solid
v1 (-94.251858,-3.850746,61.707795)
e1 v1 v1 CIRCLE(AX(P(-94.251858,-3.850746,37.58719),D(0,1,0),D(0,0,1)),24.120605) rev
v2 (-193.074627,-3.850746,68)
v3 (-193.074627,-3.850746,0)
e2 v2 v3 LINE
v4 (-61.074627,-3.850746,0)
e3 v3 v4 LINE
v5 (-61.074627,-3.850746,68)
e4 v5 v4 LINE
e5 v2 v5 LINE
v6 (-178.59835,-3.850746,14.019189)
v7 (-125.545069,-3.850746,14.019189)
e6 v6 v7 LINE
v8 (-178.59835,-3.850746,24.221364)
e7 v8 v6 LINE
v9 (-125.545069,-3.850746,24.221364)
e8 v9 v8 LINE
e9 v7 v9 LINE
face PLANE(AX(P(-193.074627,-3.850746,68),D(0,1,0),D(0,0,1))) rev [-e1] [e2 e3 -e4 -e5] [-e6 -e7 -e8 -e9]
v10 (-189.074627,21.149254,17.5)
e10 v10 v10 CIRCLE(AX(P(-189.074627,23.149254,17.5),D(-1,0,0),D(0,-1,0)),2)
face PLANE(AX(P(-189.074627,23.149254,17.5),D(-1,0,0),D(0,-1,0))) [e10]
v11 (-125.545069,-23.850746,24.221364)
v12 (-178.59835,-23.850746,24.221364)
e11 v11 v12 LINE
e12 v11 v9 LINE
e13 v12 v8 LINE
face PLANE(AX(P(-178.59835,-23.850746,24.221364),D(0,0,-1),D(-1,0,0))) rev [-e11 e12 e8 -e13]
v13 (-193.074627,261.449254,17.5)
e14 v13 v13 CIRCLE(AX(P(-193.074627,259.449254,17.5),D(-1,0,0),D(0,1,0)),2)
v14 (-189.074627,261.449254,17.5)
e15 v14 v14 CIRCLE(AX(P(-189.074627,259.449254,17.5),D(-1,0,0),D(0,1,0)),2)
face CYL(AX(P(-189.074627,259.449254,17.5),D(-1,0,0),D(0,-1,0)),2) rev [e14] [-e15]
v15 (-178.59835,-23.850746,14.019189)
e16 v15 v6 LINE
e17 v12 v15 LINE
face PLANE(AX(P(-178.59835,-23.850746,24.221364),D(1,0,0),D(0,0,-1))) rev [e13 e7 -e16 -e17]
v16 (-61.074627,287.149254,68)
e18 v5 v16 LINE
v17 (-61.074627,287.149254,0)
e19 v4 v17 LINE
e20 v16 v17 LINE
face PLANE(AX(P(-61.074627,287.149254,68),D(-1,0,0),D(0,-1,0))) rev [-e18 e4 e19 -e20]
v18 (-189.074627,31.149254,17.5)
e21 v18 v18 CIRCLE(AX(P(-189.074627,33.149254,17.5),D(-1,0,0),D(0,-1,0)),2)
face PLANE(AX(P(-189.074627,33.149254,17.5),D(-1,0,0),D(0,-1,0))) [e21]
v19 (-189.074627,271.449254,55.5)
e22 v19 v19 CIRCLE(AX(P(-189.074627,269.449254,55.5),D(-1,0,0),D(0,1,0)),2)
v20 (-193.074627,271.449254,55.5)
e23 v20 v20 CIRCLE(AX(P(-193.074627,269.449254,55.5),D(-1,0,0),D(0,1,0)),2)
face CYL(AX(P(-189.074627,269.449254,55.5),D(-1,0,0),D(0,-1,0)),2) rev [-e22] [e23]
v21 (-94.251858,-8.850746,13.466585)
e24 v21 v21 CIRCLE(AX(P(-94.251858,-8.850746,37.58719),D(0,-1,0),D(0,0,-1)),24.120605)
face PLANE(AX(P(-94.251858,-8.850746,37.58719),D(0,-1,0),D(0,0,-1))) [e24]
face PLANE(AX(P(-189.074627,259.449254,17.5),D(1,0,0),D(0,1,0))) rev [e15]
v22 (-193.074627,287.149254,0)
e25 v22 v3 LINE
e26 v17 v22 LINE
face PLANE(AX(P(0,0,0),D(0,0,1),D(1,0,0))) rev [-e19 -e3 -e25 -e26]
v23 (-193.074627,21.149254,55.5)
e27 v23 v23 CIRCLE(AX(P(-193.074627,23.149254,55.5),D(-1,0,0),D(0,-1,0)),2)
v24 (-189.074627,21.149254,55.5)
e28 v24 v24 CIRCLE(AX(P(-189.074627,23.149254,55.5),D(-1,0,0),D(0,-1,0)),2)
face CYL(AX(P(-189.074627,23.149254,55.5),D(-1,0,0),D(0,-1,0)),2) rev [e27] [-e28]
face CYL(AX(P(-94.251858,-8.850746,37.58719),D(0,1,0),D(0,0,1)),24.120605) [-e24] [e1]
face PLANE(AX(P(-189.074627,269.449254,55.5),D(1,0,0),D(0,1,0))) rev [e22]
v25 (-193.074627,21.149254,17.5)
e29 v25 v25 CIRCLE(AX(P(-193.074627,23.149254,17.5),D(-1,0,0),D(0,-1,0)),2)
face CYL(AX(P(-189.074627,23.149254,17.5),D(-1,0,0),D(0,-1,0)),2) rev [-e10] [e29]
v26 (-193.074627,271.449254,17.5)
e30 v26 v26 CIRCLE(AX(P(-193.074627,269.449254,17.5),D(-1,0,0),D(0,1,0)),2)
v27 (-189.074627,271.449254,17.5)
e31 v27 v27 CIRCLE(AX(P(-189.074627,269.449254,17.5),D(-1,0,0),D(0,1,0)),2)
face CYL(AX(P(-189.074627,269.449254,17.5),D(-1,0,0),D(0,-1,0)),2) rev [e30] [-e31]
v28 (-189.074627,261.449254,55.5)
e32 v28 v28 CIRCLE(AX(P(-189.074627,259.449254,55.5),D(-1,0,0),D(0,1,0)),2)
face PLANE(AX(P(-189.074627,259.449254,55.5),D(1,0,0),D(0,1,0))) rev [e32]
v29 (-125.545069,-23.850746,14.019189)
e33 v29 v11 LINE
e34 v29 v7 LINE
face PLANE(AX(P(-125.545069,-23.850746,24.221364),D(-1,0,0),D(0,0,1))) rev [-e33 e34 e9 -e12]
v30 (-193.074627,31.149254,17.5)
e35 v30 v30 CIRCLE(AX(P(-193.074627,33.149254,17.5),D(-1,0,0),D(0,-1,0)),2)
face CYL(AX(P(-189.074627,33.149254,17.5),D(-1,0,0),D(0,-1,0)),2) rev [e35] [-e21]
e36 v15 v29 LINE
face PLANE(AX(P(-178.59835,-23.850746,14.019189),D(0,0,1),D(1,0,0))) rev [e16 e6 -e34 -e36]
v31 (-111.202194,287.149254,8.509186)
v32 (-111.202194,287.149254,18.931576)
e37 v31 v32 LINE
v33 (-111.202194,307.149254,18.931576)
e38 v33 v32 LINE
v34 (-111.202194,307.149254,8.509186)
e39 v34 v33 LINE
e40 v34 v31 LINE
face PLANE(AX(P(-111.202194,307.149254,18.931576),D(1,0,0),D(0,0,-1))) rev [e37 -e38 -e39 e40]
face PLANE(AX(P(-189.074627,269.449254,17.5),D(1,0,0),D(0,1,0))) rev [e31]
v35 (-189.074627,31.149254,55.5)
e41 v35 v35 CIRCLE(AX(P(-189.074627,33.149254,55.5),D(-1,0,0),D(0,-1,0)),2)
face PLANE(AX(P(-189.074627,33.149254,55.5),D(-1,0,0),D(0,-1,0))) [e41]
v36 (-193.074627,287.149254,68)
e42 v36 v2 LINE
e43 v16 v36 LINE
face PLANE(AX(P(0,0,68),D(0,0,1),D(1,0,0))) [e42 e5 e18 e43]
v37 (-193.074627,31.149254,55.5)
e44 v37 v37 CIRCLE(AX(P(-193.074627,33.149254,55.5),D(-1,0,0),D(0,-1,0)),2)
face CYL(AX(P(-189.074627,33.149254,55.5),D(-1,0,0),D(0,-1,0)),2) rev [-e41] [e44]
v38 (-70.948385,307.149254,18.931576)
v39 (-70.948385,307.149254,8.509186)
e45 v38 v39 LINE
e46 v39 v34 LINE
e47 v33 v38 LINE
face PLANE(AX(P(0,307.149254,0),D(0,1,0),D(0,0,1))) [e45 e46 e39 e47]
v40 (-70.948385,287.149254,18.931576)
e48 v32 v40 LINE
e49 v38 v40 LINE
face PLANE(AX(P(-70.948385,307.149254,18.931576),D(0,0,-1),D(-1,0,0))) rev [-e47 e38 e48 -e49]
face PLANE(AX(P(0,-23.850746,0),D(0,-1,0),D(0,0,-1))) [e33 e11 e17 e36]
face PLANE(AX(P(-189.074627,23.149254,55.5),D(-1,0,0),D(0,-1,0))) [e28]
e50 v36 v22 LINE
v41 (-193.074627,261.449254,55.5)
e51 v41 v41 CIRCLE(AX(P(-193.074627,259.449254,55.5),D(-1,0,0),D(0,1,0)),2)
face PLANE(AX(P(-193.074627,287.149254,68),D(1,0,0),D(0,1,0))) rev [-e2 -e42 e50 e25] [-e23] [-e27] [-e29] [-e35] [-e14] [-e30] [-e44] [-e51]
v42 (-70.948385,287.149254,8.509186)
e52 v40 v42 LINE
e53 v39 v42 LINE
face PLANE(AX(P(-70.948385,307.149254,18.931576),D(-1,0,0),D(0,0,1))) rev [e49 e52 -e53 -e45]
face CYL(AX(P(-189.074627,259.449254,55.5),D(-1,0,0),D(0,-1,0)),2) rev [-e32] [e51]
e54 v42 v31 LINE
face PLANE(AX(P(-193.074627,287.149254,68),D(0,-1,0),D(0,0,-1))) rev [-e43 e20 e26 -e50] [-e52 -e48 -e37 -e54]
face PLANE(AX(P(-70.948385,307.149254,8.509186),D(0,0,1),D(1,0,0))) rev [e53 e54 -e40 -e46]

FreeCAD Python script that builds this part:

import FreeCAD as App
import Part
import Sketcher

V = App.Vector

doc = App.newDocument("Part")
params = doc.addObject("Spreadsheet::Sheet", "Params")
for row, (alias, value) in enumerate([
    ("sketch1_width", "132 mm"),
    ("sketch1_height", "291 mm"),
    ("pad1_length", "68 mm"),
    ("sketch2_diameter", "4 mm"),
    ("pocket1_length", "4 mm"),
    ("pad2_length", "20 mm"),
    ("pad3_length", "5 mm"),
    ("pad4_length", "20 mm"),
], start=1):
    params.set(f"A{row}", alias)
    params.set(f"B{row}", "=" + value)
    params.setAlias(f"B{row}", alias)

body = doc.addObject("PartDesign::Body", "Body")

sketch1 = body.newObject("Sketcher::SketchObject", "Sketch")
sketch1.AttachmentSupport = (doc.getObject("XY_Plane"), [""])
sketch1.MapMode = "FlatFace"
sketch1.addGeometry([
    Part.LineSegment(V(-193, 287, 0), V(-193, -4, 0)),
    Part.LineSegment(V(-193, -4, 0), V(-61, -4, 0)),
    Part.LineSegment(V(-61, -4, 0), V(-61, 287, 0)),
    Part.LineSegment(V(-61, 287, 0), V(-193, 287, 0)),
], False)
sketch1.addConstraint([
    Sketcher.Constraint("Coincident", 0, 2, 1, 1),
    Sketcher.Constraint("Coincident", 1, 2, 2, 1),
    Sketcher.Constraint("Coincident", 2, 2, 3, 1),
    Sketcher.Constraint("Coincident", 3, 2, 0, 1),
    Sketcher.Constraint("Vertical", 0),
    Sketcher.Constraint("Horizontal", 1),
    Sketcher.Constraint("Vertical", 2),
    Sketcher.Constraint("Horizontal", 3),
    Sketcher.Constraint("DistanceX", 1, 1, 1, 2, 132.0),
    Sketcher.Constraint("DistanceY", 0, 2, 0, 1, 291.0),
    Sketcher.Constraint("DistanceX", 0, 2, -1, 1, 193.074627),
    Sketcher.Constraint("DistanceY", 0, 2, -1, 1, 3.850746),
])
sketch1.setExpression("Constraints[8]", "Params.sketch1_width")
sketch1.setExpression("Constraints[9]", "Params.sketch1_height")
pad1 = body.newObject("PartDesign::Pad", "Pad")
pad1.Profile = sketch1
pad1.setExpression("Length", "Params.pad1_length")

sketch2 = body.newObject("Sketcher::SketchObject", "Sketch001")
sketch2.AttachmentSupport = (doc.getObject("YZ_Plane"), [""])
sketch2.MapMode = "FlatFace"
sketch2.AttachmentOffset = App.Placement(V(0, 0, -193.074627), App.Rotation())
sketch2.addGeometry([
    Part.Circle(V(23.1, 17.5, 0), V(0, 0, 1), 2),
    Part.Circle(V(23.1, 55.5, 0), V(0, 0, 1), 2),
    Part.Circle(V(33.1, 55.5, 0), V(0, 0, 1), 2),
    Part.Circle(V(33.1, 17.5, 0), V(0, 0, 1), 2),
    Part.Circle(V(269.4, 17.5, 0), V(0, 0, 1), 2),
    Part.Circle(V(259.4, 17.5, 0), V(0, 0, 1), 2),
    Part.Circle(V(259.4, 55.5, 0), V(0, 0, 1), 2),
    Part.Circle(V(269.4, 55.5, 0), V(0, 0, 1), 2),
], False)
sketch2.addConstraint([
    Sketcher.Constraint("Equal", 0, 1),
    Sketcher.Constraint("Equal", 1, 2),
    Sketcher.Constraint("Equal", 2, 3),
    Sketcher.Constraint("Equal", 3, 4),
    Sketcher.Constraint("Equal", 4, 5),
    Sketcher.Constraint("Equal", 5, 6),
    Sketcher.Constraint("Equal", 6, 7),
    Sketcher.Constraint("Horizontal", 1, 3, 2, 3),
    Sketcher.Constraint("Horizontal", 0, 3, 3, 3),
    Sketcher.Constraint("Horizontal", 3, 3, 4, 3),
    Sketcher.Constraint("Horizontal", 4, 3, 5, 3),
    Sketcher.Constraint("Horizontal", 2, 3, 6, 3),
    Sketcher.Constraint("Horizontal", 6, 3, 7, 3),
    Sketcher.Constraint("Vertical", 0, 3, 1, 3),
    Sketcher.Constraint("Vertical", 2, 3, 3, 3),
    Sketcher.Constraint("Vertical", 5, 3, 6, 3),
    Sketcher.Constraint("Vertical", 4, 3, 7, 3),
    Sketcher.Constraint("Diameter", 0, 4.0),
    Sketcher.Constraint("DistanceY", 0, 3, 1, 3, 38.0),
    Sketcher.Constraint("DistanceX", 1, 3, 2, 3, 10.0),
    Sketcher.Constraint("DistanceX", 5, 3, 4, 3, 10.0),
    Sketcher.Constraint("DistanceY", -1, 1, 0, 3, 17.5),
    Sketcher.Constraint("DistanceX", 3, 3, 4, 3, 236.3),
    Sketcher.Constraint("DistanceX", -1, 1, 0, 3, 23.149254),
])
sketch2.setExpression("Constraints[17]", "Params.sketch2_diameter")
pocket1 = body.newObject("PartDesign::Pocket", "Pocket")
pocket1.Profile = sketch2
pocket1.setExpression("Length", "Params.pocket1_length")
pocket1.Reversed = True

sketch3 = body.newObject("Sketcher::SketchObject", "Sketch002")
sketch3.AttachmentSupport = (doc.getObject("XZ_Plane"), [""])
sketch3.MapMode = "FlatFace"
sketch3.AttachmentOffset = App.Placement(V(0, 0, 3.850746), App.Rotation())
sketch3.addGeometry([
    Part.LineSegment(V(-179, 24, 0), V(-179, 14, 0)),
    Part.LineSegment(V(-179, 14, 0), V(-126, 14, 0)),
    Part.LineSegment(V(-126, 14, 0), V(-126, 24, 0)),
    Part.LineSegment(V(-126, 24, 0), V(-179, 24, 0)),
], False)
sketch3.addConstraint([
    Sketcher.Constraint("Coincident", 0, 2, 1, 1),
    Sketcher.Constraint("Coincident", 1, 2, 2, 1),
    Sketcher.Constraint("Coincident", 2, 2, 3, 1),
    Sketcher.Constraint("Coincident", 3, 2, 0, 1),
    Sketcher.Constraint("Vertical", 0),
    Sketcher.Constraint("Horizontal", 1),
    Sketcher.Constraint("Vertical", 2),
    Sketcher.Constraint("Horizontal", 3),
    Sketcher.Constraint("DistanceX", 1, 1, 1, 2, 53.053281),
    Sketcher.Constraint("DistanceY", 0, 2, 0, 1, 10.202176),
    Sketcher.Constraint("DistanceX", 0, 2, -1, 1, 178.59835),
    Sketcher.Constraint("DistanceY", -1, 1, 0, 2, 14.019189),
])
pad2 = body.newObject("PartDesign::Pad", "Pad001")
pad2.Profile = sketch3
pad2.setExpression("Length", "Params.pad2_length")

sketch4 = body.newObject("Sketcher::SketchObject", "Sketch003")
sketch4.AttachmentSupport = (doc.getObject("XZ_Plane"), [""])
sketch4.MapMode = "FlatFace"
sketch4.AttachmentOffset = App.Placement(V(0, 0, 3.850746), App.Rotation())
sketch4.addGeometry(Part.Circle(V(-94, 38, 0), V(0, 0, 1), 24), False)
sketch4.addConstraint([
    Sketcher.Constraint("Diameter", 0, 48.24121),
    Sketcher.Constraint("DistanceY", -1, 1, 0, 3, 37.58719),
    Sketcher.Constraint("DistanceX", 0, 3, -1, 1, 94.251858),
])
pad3 = body.newObject("PartDesign::Pad", "Pad002")
pad3.Profile = sketch4
pad3.setExpression("Length", "Params.pad3_length")

sketch5 = body.newObject("Sketcher::SketchObject", "Sketch004")
sketch5.AttachmentSupport = (doc.getObject("XZ_Plane"), [""])
sketch5.MapMode = "FlatFace"
sketch5.AttachmentOffset = App.Placement(V(0, 0, -287.149254), App.Rotation())
sketch5.addGeometry([
    Part.LineSegment(V(-111, 9, 0), V(-111, 19, 0)),
    Part.LineSegment(V(-111, 19, 0), V(-71, 19, 0)),
    Part.LineSegment(V(-71, 19, 0), V(-71, 9, 0)),
    Part.LineSegment(V(-71, 9, 0), V(-111, 9, 0)),
], False)
sketch5.addConstraint([
    Sketcher.Constraint("Coincident", 0, 2, 1, 1),
    Sketcher.Constraint("Coincident", 1, 2, 2, 1),
    Sketcher.Constraint("Coincident", 2, 2, 3, 1),
    Sketcher.Constraint("Coincident", 3, 2, 0, 1),
    Sketcher.Constraint("Vertical", 0),
    Sketcher.Constraint("Horizontal", 1),
    Sketcher.Constraint("Vertical", 2),
    Sketcher.Constraint("Horizontal", 3),
    Sketcher.Constraint("DistanceX", 1, 1, 1, 2, 40.253809),
    Sketcher.Constraint("DistanceY", 0, 1, 0, 2, 10.42239),
    Sketcher.Constraint("DistanceX", 0, 2, -1, 1, 111.202194),
    Sketcher.Constraint("DistanceY", -1, 1, 0, 2, 18.931576),
])
pad4 = body.newObject("PartDesign::Pad", "Pad003")
pad4.Profile = sketch5
pad4.setExpression("Length", "Params.pad4_length")
pad4.Reversed = True

doc.recompute()
